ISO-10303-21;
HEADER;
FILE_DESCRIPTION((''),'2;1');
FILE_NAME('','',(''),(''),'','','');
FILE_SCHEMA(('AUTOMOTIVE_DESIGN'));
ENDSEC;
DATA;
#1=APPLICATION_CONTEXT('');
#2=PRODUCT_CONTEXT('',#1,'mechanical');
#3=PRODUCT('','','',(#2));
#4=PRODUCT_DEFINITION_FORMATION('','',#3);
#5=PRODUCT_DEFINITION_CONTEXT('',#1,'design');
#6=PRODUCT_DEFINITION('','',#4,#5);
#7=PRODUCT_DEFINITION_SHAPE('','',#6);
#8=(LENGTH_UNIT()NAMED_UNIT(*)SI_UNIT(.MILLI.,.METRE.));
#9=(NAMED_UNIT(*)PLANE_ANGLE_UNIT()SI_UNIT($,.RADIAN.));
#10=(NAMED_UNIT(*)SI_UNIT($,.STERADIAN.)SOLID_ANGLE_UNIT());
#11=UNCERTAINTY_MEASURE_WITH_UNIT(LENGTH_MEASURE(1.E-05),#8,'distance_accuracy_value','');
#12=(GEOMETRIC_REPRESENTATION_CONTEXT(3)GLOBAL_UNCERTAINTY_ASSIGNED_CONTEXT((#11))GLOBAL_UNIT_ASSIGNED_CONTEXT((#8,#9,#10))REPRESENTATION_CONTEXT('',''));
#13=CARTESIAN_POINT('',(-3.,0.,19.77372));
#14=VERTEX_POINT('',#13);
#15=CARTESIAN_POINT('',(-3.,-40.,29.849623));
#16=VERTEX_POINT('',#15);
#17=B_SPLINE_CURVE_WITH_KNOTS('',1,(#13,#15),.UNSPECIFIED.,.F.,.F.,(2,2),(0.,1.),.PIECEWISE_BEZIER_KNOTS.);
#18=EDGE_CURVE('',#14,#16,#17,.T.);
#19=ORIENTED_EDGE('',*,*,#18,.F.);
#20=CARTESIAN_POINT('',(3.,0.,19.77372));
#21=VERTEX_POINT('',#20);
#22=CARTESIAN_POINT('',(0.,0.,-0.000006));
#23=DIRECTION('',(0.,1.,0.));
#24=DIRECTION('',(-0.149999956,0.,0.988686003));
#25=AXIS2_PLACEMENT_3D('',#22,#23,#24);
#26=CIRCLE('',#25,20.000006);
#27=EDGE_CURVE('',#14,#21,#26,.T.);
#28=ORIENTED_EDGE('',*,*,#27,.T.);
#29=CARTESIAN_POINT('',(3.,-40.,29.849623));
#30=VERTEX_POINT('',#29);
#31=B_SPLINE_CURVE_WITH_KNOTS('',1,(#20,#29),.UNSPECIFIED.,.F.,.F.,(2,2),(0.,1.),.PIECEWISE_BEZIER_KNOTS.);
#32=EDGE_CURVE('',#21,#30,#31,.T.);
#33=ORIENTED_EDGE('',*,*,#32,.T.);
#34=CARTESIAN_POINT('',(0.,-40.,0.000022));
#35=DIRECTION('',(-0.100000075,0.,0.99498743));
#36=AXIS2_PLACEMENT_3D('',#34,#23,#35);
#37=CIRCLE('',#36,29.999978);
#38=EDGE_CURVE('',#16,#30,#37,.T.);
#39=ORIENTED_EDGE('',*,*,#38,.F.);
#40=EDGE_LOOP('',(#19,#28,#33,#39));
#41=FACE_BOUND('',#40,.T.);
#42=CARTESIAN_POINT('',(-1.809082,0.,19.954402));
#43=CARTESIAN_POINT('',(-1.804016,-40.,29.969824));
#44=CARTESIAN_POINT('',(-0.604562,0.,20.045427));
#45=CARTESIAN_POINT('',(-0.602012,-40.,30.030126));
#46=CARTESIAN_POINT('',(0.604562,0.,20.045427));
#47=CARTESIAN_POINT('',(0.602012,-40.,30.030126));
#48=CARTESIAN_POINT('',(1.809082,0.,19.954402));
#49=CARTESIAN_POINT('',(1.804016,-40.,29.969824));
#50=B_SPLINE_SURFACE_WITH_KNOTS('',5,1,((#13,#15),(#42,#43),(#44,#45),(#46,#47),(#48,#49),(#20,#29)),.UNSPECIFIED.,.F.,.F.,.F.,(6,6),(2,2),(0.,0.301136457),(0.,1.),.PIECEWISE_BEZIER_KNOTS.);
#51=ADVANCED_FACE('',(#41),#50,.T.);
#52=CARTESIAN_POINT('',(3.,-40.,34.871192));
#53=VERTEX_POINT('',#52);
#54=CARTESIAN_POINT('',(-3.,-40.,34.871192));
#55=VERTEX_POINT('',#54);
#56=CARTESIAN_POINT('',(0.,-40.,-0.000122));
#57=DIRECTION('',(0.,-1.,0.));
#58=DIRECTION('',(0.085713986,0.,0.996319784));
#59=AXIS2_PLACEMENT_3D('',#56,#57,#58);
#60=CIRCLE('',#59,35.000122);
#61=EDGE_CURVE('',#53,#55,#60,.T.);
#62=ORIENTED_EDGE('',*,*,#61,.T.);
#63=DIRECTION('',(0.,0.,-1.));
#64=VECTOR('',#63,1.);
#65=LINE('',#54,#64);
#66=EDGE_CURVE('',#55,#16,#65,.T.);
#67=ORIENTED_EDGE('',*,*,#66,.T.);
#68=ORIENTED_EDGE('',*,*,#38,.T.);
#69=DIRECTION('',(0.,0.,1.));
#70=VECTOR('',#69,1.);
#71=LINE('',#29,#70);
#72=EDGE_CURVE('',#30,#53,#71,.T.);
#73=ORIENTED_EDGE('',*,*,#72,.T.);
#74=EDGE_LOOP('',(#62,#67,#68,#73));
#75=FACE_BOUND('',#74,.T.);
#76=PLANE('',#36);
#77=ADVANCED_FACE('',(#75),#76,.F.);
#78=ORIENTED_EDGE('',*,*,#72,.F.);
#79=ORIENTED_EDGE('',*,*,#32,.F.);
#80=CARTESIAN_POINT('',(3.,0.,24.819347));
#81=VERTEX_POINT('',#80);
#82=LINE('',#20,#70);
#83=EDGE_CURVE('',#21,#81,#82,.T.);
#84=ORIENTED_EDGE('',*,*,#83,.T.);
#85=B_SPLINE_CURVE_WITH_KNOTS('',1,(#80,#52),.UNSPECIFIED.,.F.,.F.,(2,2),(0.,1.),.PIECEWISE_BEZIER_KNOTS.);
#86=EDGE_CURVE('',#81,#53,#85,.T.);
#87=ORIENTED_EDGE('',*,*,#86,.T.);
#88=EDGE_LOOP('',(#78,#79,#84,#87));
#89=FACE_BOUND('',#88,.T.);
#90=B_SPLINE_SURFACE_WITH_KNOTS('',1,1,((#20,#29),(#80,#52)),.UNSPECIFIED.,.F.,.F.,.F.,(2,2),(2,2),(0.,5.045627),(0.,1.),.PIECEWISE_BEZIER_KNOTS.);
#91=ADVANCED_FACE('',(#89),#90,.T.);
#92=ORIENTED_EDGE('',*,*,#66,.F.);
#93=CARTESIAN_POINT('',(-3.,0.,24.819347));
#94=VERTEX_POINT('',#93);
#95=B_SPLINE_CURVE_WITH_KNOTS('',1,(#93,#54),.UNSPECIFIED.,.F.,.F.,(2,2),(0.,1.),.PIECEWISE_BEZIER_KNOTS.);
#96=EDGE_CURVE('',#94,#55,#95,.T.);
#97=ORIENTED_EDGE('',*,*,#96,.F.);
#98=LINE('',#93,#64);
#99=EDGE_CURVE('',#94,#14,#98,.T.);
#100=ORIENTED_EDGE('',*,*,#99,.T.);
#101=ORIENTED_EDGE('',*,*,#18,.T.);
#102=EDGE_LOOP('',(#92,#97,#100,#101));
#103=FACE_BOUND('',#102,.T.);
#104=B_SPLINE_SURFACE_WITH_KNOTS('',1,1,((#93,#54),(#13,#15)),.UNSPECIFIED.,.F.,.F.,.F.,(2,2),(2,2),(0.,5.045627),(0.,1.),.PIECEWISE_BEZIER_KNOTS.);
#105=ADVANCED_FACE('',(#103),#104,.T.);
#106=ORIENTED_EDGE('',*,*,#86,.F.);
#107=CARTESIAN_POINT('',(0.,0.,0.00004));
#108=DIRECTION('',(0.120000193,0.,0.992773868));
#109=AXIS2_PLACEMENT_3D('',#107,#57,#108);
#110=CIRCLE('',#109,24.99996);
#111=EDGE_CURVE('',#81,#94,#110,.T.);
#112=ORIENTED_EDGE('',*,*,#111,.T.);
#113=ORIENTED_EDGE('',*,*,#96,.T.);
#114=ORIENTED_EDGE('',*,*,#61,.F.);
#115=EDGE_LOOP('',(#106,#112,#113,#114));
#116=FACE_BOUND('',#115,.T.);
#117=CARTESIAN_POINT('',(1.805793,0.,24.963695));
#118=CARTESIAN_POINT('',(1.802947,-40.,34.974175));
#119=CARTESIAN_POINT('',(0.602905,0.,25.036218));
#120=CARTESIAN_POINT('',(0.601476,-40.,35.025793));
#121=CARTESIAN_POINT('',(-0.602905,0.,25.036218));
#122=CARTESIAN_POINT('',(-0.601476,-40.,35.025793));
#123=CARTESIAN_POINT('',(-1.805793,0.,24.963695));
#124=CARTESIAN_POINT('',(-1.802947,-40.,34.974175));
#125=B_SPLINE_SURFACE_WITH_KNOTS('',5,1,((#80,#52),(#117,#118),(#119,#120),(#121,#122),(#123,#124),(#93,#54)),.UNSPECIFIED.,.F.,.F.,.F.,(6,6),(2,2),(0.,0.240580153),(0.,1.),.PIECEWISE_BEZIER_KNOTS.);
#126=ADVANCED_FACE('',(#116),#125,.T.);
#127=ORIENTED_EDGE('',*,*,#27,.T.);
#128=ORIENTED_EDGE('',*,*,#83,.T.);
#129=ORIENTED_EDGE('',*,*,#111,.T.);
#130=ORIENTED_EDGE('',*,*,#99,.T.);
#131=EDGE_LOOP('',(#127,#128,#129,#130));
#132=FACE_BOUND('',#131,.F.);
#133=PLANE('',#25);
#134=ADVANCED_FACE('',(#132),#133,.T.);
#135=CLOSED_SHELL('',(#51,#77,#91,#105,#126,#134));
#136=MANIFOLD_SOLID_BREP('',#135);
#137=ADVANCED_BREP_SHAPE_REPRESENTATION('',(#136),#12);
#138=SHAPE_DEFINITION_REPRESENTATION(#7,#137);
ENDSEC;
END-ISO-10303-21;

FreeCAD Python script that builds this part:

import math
import FreeCAD as App
import Part
import Sketcher
from FreeCAD import Vector
Q = App.Units.Quantity

doc = App.newDocument("Part")
body = doc.addObject("PartDesign::Body", "Body")

# Sketch on XZ plane
sketch1 = body.newObject("Sketcher::SketchObject", "Sketch")
sketch1.AttachmentSupport = (doc.getObject("XZ_Plane"), [""])
sketch1.MapMode = "FlatFace"
sketch1.addGeometry(Part.ArcOfCircle(Part.Circle(Vector(0, 0, 0), Vector(0, 0, 1), 20), math.radians(81.37), math.radians(98.63)), False)
sketch1.addGeometry(Part.LineSegment(Vector(3, 20, 0), Vector(3, 25, 0)), False)
sketch1.addGeometry(Part.ArcOfCircle(Part.Circle(Vector(0, 0, 0), Vector(0, 0, 1), 25), math.radians(83.11), math.radians(96.89)), False)
sketch1.addGeometry(Part.LineSegment(Vector(-3, 25, 0), Vector(-3, 20, 0)), False)
sketch1.addConstraint(Sketcher.Constraint("Coincident", 0, 1, 1, 1))
sketch1.addConstraint(Sketcher.Constraint("Coincident", 1, 2, 2, 1))
sketch1.addConstraint(Sketcher.Constraint("Coincident", 2, 2, 3, 1))
sketch1.addConstraint(Sketcher.Constraint("Coincident", 3, 2, 0, 2))
sketch1.addConstraint(Sketcher.Constraint("Vertical", 1))
sketch1.addConstraint(Sketcher.Constraint("Vertical", 3))
sketch1.addConstraint(Sketcher.Constraint("Coincident", 0, 3, -1, 1))
sketch1.addConstraint(Sketcher.Constraint("Symmetric", 1, 2, 2, 2, -2))
sketch1.addConstraint(Sketcher.Constraint("DistanceX", -1, 1, 0, 1, Q("3 mm")))
sketch1.addConstraint(Sketcher.Constraint("Radius", 2, Q("24.99996 mm")))
sketch1.addConstraint(Sketcher.Constraint("Radius", 0, Q("20.000006 mm")))
sketch1.addConstraint(Sketcher.Constraint("DistanceY", 1, 1, 1, 2, Q("5.045627 mm")))

# Sketch on XZ plane
sketch2 = body.newObject("Sketcher::SketchObject", "Sketch001")
sketch2.AttachmentSupport = (doc.getObject("XZ_Plane"), [""])
sketch2.MapMode = "FlatFace"
sketch2.AttachmentOffset = App.Placement(Vector(0, 0, 40), App.Rotation())
sketch2.addGeometry(Part.ArcOfCircle(Part.Circle(Vector(0, 0, 0), Vector(0, 0, 1), 30), math.radians(84.26), math.radians(95.74)), False)
sketch2.addGeometry(Part.LineSegment(Vector(3, 30, 0), Vector(3, 35, 0)), False)
sketch2.addGeometry(Part.ArcOfCircle(Part.Circle(Vector(0, 0, 0), Vector(0, 0, 1), 35), math.radians(85.08), math.radians(94.92)), False)
sketch2.addGeometry(Part.LineSegment(Vector(-3, 35, 0), Vector(-3, 30, 0)), False)
sketch2.addConstraint(Sketcher.Constraint("Coincident", 0, 1, 1, 1))
sketch2.addConstraint(Sketcher.Constraint("Coincident", 1, 2, 2, 1))
sketch2.addConstraint(Sketcher.Constraint("Coincident", 2, 2, 3, 1))
sketch2.addConstraint(Sketcher.Constraint("Coincident", 3, 2, 0, 2))
sketch2.addConstraint(Sketcher.Constraint("Vertical", 1))
sketch2.addConstraint(Sketcher.Constraint("Vertical", 3))
sketch2.addConstraint(Sketcher.Constraint("Symmetric", 1, 2, 2, 2, -2))
sketch2.addConstraint(Sketcher.Constraint("PointOnObject", 0, 3, -2))
sketch2.addConstraint(Sketcher.Constraint("DistanceX", -1, 1, 0, 1, Q("3 mm")))
sketch2.addConstraint(Sketcher.Constraint("Radius", 0, Q("29.999978 mm")))
sketch2.addConstraint(Sketcher.Constraint("Radius", 2, Q("35.000122 mm")))
sketch2.addConstraint(Sketcher.Constraint("DistanceY", 1, 1, 1, 2, Q("5.021569 mm")))
sketch2.addConstraint(Sketcher.Constraint("DistanceY", -1, 1, 2, 2, Q("34.871192 mm")))

additiveloft = body.newObject("PartDesign::AdditiveLoft", "AdditiveLoft")
additiveloft.Profile = sketch1
additiveloft.Sections = [sketch2]

doc.recompute()
